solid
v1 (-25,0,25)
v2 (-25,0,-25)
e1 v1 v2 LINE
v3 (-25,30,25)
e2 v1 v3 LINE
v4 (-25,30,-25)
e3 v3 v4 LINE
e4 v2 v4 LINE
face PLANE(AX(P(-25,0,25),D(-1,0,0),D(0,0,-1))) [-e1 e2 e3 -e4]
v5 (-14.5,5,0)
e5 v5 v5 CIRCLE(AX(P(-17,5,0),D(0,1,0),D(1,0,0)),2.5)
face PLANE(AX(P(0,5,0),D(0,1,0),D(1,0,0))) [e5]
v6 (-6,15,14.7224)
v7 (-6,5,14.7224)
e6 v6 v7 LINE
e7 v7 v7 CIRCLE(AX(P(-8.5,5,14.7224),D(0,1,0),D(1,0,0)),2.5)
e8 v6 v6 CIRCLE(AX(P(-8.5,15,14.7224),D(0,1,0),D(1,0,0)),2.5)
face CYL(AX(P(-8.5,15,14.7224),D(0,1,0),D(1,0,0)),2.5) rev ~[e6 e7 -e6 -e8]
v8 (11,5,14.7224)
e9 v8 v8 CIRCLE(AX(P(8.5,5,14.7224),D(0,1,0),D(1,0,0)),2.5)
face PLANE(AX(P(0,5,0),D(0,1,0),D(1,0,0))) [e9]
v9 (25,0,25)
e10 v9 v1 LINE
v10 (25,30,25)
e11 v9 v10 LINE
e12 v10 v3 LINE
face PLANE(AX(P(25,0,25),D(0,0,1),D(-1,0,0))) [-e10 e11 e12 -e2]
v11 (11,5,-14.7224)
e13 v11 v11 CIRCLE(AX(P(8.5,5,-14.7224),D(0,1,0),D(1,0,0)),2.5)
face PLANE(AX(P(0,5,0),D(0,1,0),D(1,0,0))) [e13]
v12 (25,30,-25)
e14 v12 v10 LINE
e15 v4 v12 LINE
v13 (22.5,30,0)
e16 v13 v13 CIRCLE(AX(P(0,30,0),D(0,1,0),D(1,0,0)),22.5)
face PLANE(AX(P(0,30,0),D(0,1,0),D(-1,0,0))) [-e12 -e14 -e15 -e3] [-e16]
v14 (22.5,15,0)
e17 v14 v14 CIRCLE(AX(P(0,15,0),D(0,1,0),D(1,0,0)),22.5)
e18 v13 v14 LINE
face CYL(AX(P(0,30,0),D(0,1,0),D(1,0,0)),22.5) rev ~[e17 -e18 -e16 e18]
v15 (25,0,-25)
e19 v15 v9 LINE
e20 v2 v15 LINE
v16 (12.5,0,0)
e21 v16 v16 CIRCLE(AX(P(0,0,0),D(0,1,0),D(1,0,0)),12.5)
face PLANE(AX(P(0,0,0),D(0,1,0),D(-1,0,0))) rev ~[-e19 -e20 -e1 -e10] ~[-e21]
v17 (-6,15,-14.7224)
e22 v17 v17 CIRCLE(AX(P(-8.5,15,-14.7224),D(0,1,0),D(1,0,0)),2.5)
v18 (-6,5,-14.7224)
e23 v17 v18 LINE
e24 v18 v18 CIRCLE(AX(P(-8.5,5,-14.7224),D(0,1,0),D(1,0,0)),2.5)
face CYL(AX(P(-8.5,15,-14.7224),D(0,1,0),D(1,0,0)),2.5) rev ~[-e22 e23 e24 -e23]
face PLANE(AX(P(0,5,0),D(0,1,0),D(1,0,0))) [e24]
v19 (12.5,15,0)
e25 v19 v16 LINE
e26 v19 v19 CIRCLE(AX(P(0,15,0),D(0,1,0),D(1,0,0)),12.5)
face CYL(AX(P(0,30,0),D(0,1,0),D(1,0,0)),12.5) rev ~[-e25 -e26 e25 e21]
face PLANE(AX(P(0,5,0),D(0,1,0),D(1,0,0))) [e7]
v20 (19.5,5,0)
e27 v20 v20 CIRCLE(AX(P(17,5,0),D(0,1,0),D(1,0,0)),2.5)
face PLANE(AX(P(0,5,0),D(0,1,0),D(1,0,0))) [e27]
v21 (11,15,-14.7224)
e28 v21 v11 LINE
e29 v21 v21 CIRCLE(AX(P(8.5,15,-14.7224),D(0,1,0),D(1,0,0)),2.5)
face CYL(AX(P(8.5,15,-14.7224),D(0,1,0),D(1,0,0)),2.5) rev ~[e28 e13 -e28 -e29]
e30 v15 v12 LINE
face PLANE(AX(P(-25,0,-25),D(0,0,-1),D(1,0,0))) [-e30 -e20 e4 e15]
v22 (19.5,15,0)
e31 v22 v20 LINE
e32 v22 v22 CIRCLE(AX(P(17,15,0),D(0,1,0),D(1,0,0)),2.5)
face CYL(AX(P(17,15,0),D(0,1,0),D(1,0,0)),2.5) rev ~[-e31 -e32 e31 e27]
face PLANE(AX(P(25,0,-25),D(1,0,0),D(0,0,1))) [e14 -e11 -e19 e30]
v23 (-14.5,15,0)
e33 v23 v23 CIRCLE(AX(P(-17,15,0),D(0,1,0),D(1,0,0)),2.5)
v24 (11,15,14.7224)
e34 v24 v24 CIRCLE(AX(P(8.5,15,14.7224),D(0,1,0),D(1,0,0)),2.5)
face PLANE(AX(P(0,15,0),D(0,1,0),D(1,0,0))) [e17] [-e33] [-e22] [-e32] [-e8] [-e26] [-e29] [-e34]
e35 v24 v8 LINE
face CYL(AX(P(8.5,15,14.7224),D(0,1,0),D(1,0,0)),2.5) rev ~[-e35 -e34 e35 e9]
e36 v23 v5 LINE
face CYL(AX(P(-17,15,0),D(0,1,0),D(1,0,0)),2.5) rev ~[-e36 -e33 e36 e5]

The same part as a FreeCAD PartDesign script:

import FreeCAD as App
import Part
import Sketcher


def add_polygon(sketch, points):
    """Adds a closed chain of lines whose ends are joined by coincident constraints."""
    first, n = sketch.GeometryCount, len(points)
    for a, b in zip(points, points[1:] + points[:1]):
        sketch.addGeometry(Part.LineSegment(App.Vector(*a, 0), App.Vector(*b, 0)), False)
    for i in range(n):
        sketch.addConstraint(Sketcher.Constraint("Coincident", first + i, 2, first + (i + 1) % n, 1))

doc = App.newDocument("Part")
params = doc.addObject("Spreadsheet::Sheet", "Params")
for row, (alias, value) in enumerate([
    ("sketch1_width", "50 mm"),
    ("pad1_length", "30 mm"),
    ("sketch2_diameter", "25 mm"),
    ("sketch3_diameter", "45 mm"),
    ("pocket2_length", "15 mm"),
    ("sketch4_diameter", "5 mm"),
    ("pocket3_length", "10 mm"),
], start=1):
    params.set(f"A{row}", alias)
    params.set(f"B{row}", "=" + value)
    params.setAlias(f"B{row}", alias)

body = doc.addObject("PartDesign::Body", "Body")

# Sketch on XZ plane
sketch1 = body.newObject("Sketcher::SketchObject", "Sketch")
sketch1.AttachmentSupport = (doc.getObject("XZ_Plane"), [""])
sketch1.MapMode = "FlatFace"
add_polygon(sketch1, [(-25, 25), (25, 25), (25, -25), (-25, -25)])  # lines 0-3
sketch1.addConstraint([
    Sketcher.Constraint("Horizontal", 0),
    Sketcher.Constraint("Vertical", 1),
    Sketcher.Constraint("Horizontal", 2),
    Sketcher.Constraint("Vertical", 3),
    Sketcher.Constraint("Symmetric", 0, 2, 2, 2, -1, 1),
    Sketcher.Constraint("Equal", 2, 1),
    Sketcher.Constraint("DistanceX", 0, 1, 0, 2, 50.0),
])
sketch1.setExpression("Constraints[10]", "Params.sketch1_width")
pad1 = body.newObject("PartDesign::Pad", "Pad")
pad1.Profile = sketch1
pad1.setExpression("Length", "Params.pad1_length")
pad1.Reversed = True

# Sketch on XZ plane
sketch2 = body.newObject("Sketcher::SketchObject", "Sketch001")
sketch2.AttachmentSupport = (doc.getObject("XZ_Plane"), [""])
sketch2.MapMode = "FlatFace"
sketch2.AttachmentOffset = App.Placement(App.Vector(0, 0, -30), App.Rotation())
sketch2.addGeometry(Part.Circle(App.Vector(0, 0, 0), App.Vector(0, 0, 1), 12), False)
sketch2.addConstraint([
    Sketcher.Constraint("Coincident", 0, 3, -1, 1),
    Sketcher.Constraint("Diameter", 0, 25.0),
])
sketch2.setExpression("Constraints[1]", "Params.sketch2_diameter")
pocket1 = body.newObject("PartDesign::Pocket", "Pocket")
pocket1.Profile = sketch2
pocket1.Type = "UpToFirst"
pocket1.Reversed = True

# Sketch on XZ plane
sketch3 = body.newObject("Sketcher::SketchObject", "Sketch002")
sketch3.AttachmentSupport = (doc.getObject("XZ_Plane"), [""])
sketch3.MapMode = "FlatFace"
sketch3.AttachmentOffset = App.Placement(App.Vector(0, 0, -30), App.Rotation())
sketch3.addGeometry(Part.Circle(App.Vector(0, 0, 0), App.Vector(0, 0, 1), 22), False)
sketch3.addConstraint([
    Sketcher.Constraint("Coincident", 0, 3, -1, 1),
    Sketcher.Constraint("Diameter", 0, 45.0),
])
sketch3.setExpression("Constraints[1]", "Params.sketch3_diameter")
pocket2 = body.newObject("PartDesign::Pocket", "Pocket001")
pocket2.Profile = sketch3
pocket2.setExpression("Length", "Params.pocket2_length")
pocket2.Reversed = True

# Sketch on XZ plane
sketch4 = body.newObject("Sketcher::SketchObject", "Sketch003")
sketch4.AttachmentSupport = (doc.getObject("XZ_Plane"), [""])
sketch4.MapMode = "FlatFace"
sketch4.AttachmentOffset = App.Placement(App.Vector(0, 0, -15), App.Rotation())
sketch4.addGeometry([
    Part.Circle(App.Vector(-17, 0, 0), App.Vector(0, 0, 1), 2.5),  # 0
    Part.Circle(App.Vector(-8.5, 14.7, 0), App.Vector(0, 0, 1), 2.5),  # 1
    Part.Circle(App.Vector(8.5, 14.7, 0), App.Vector(0, 0, 1), 2.5),  # 2
    Part.Circle(App.Vector(17, 0, 0), App.Vector(0, 0, 1), 2.5),  # 3
    Part.Circle(App.Vector(8.5, -14.7, 0), App.Vector(0, 0, 1), 2.5),  # 4
    Part.Circle(App.Vector(-8.5, -14.7, 0), App.Vector(0, 0, 1), 2.5),  # 5
], False)
sketch4.addConstraint([
    Sketcher.Constraint("Equal", 0, 1),
    Sketcher.Constraint("Equal", 1, 2),
    Sketcher.Constraint("Equal", 2, 3),
    Sketcher.Constraint("Equal", 3, 4),
    Sketcher.Constraint("Equal", 4, 5),
    Sketcher.Constraint("Symmetric", 0, 3, 3, 3, -1, 1),
    Sketcher.Constraint("Symmetric", 1, 3, 4, 3, -1, 1),
    Sketcher.Constraint("Symmetric", 2, 3, 5, 3, -1, 1),
    Sketcher.Constraint("Symmetric", 1, 3, 2, 3, -2),
    Sketcher.Constraint("PointOnObject", 0, 3, -1),
    Sketcher.Constraint("Diameter", 0, 5.0),
    Sketcher.Constraint("DistanceX", 0, 3, -1, 1, 17.0),
    Sketcher.Constraint("DistanceX", 1, 3, 2, 3, 17.0),
    Sketcher.Constraint("DistanceY", -1, 1, 1, 3, 14.7224),
])
sketch4.setExpression("Constraints[10]", "Params.sketch4_diameter")
pocket3 = body.newObject("PartDesign::Pocket", "Pocket002")
pocket3.Profile = sketch4
pocket3.setExpression("Length", "Params.pocket3_length")
pocket3.Reversed = True

doc.recompute()
